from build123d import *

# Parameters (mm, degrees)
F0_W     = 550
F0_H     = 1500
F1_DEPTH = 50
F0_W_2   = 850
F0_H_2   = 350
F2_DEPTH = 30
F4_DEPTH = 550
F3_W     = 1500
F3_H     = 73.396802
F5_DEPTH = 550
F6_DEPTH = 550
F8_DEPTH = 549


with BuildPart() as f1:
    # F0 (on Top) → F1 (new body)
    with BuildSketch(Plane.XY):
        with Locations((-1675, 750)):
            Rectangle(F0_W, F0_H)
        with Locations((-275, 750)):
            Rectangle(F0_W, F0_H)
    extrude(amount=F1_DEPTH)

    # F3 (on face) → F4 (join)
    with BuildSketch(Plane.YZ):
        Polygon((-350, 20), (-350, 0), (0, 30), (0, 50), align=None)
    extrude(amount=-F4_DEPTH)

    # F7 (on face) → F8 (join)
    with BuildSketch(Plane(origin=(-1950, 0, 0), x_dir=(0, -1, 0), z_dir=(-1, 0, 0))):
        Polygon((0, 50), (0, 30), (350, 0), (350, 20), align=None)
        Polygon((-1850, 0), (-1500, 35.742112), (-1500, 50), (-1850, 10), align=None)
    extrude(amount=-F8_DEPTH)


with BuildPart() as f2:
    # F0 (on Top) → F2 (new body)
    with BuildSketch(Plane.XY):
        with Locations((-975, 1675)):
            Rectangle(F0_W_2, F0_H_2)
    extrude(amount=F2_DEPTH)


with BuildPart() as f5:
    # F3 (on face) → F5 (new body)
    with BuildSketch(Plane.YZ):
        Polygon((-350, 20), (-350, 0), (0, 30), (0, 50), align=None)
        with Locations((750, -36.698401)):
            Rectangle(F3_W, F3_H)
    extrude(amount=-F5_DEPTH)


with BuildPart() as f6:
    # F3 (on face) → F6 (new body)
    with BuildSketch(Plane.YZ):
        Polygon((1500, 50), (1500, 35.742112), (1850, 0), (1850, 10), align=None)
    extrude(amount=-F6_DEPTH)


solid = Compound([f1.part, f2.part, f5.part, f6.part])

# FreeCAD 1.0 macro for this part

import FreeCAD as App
import Part
import Sketcher

V = App.Vector
Q = App.Units.Quantity


def add_polygon(sketch, points):
    """Adds a closed chain of lines whose ends are joined by coincident constraints."""
    first, n = sketch.GeometryCount, len(points)
    for a, b in zip(points, points[1:] + points[:1]):
        sketch.addGeometry(Part.LineSegment(App.Vector(*a, 0), App.Vector(*b, 0)), False)
    for i in range(n):
        sketch.addConstraint(Sketcher.Constraint("Coincident", first + i, 2, first + (i + 1) % n, 1))

doc = App.newDocument("Part")
body = doc.addObject("PartDesign::Body", "Body")
body.AllowCompound = True

# Sketch on XY plane
sketch1 = body.newObject("Sketcher::SketchObject", "Sketch")
sketch1.AttachmentSupport = (doc.getObject("XY_Plane"), [""])
sketch1.MapMode = "FlatFace"
add_polygon(sketch1, [(-1950, 1500), (-1950, 0), (-1400, 0), (-1400, 1500)])  # lines 0-3
add_polygon(sketch1, [(-550, 1500), (-550, 0), (0, 0), (0, 1500)])  # lines 4-7
sketch1.addConstraint([
    Sketcher.Constraint("Vertical", 0),
    Sketcher.Constraint("Horizontal", 1),
    Sketcher.Constraint("Vertical", 2),
    Sketcher.Constraint("Horizontal", 3),
    Sketcher.Constraint("Vertical", 4),
    Sketcher.Constraint("Horizontal", 5),
    Sketcher.Constraint("Vertical", 6),
    Sketcher.Constraint("Horizontal", 7),
    Sketcher.Constraint("Coincident", 5, 2, -1, 1),
    Sketcher.Constraint("PointOnObject", 0, 2, -1),
    Sketcher.Constraint("Horizontal", 3, 2, 6, 2),
    Sketcher.Constraint("Equal", 3, 5),
    Sketcher.Constraint("DistanceX", 1, 1, 1, 2, Q("550 mm")),
    Sketcher.Constraint("DistanceY", 0, 2, 0, 1, Q("1500 mm")),
    Sketcher.Constraint("DistanceX", 0, 2, -1, 1, Q("1950 mm")),
])
pad1 = body.newObject("PartDesign::Pad", "Pad")
pad1.Profile = sketch1
pad1.Length = 50

# Sketch on YZ plane
sketch2 = body.newObject("Sketcher::SketchObject", "Sketch001")
sketch2.AttachmentSupport = (doc.getObject("YZ_Plane"), [""])
sketch2.MapMode = "FlatFace"
add_polygon(sketch2, [(-350, 20), (-350, 0), (0, 30), (0, 50)])  # lines 0-3
sketch2.addConstraint([
    Sketcher.Constraint("Vertical", 0),
    Sketcher.Constraint("Vertical", 2),
    Sketcher.Constraint("PointOnObject", 0, 2, -1),
    Sketcher.Constraint("PointOnObject", 1, 2, -2),
    Sketcher.Constraint("Parallel", 1, 3),
    Sketcher.Constraint("DistanceY", 0, 2, 0, 1, Q("20 mm")),
    Sketcher.Constraint("DistanceX", 0, 2, -1, 1, Q("350 mm")),
    Sketcher.Constraint("DistanceY", -1, 1, 1, 2, Q("30 mm")),
])
pad2 = body.newObject("PartDesign::Pad", "Pad001")
pad2.Profile = sketch2
pad2.Length = 550
pad2.Reversed = True

# Sketch on YZ plane
sketch3 = body.newObject("Sketcher::SketchObject", "Sketch002")
sketch3.AttachmentSupport = (doc.getObject("YZ_Plane"), [""])
sketch3.MapMode = "FlatFace"
sketch3.AttachmentOffset = App.Placement(V(0, 0, -1950), App.Rotation())
add_polygon(sketch3, [(0, 50), (0, 30), (-350, 0), (-350, 20)])  # lines 0-3
add_polygon(sketch3, [(1850, 0), (1500, 36), (1500, 50), (1850, 10)])  # lines 4-7
sketch3.addConstraint([
    Sketcher.Constraint("Vertical", 0),
    Sketcher.Constraint("Vertical", 2),
    Sketcher.Constraint("Vertical", 5),
    Sketcher.Constraint("Vertical", 7),
    Sketcher.Constraint("PointOnObject", 0, 2, -2),
    Sketcher.Constraint("PointOnObject", 1, 2, -1),
    Sketcher.Constraint("PointOnObject", 7, 2, -1),
    Sketcher.Constraint("Parallel", 1, 3),
    Sketcher.Constraint("Horizontal", 3, 2, 5, 2),
    Sketcher.Constraint("DistanceY", 0, 2, 0, 1, Q("20 mm")),
    Sketcher.Constraint("DistanceY", 7, 2, 7, 1, Q("10 mm")),
    Sketcher.Constraint("DistanceY", -1, 1, 0, 2, Q("30 mm")),
    Sketcher.Constraint("DistanceX", 1, 2, -1, 1, Q("350 mm")),
    Sketcher.Constraint("DistanceX", -1, 1, 4, 2, Q("1500 mm")),
    Sketcher.Constraint("DistanceX", -1, 1, 6, 2, Q("1850 mm")),
    Sketcher.Constraint("DistanceY", 5, 1, 5, 2, Q("14.257888 mm")),
])
pad3 = body.newObject("PartDesign::Pad", "Pad002")
pad3.Profile = sketch3
pad3.Length = 549
body2 = doc.addObject("PartDesign::Body", "Body001")

# Sketch on XY plane
sketch4 = body2.newObject("Sketcher::SketchObject", "Sketch003")
sketch4.AttachmentSupport = (doc.getObject("XY_Plane001"), [""])
sketch4.MapMode = "FlatFace"
add_polygon(sketch4, [(-1400, 1850), (-1400, 1500), (-550, 1500), (-550, 1850)])  # lines 0-3
sketch4.addConstraint([
    Sketcher.Constraint("Vertical", 0),
    Sketcher.Constraint("Horizontal", 1),
    Sketcher.Constraint("Vertical", 2),
    Sketcher.Constraint("Horizontal", 3),
    Sketcher.Constraint("DistanceX", 1, 1, 1, 2, Q("850 mm")),
    Sketcher.Constraint("DistanceY", 0, 2, 0, 1, Q("350 mm")),
    Sketcher.Constraint("DistanceX", 0, 2, -1, 1, Q("1400 mm")),
    Sketcher.Constraint("DistanceY", -1, 1, 0, 2, Q("1500 mm")),
])
pad4 = body2.newObject("PartDesign::Pad", "Pad003")
pad4.Profile = sketch4
pad4.Length = 30
body3 = doc.addObject("PartDesign::Body", "Body002")
body3.AllowCompound = True

# Sketch on YZ plane
sketch5 = body3.newObject("Sketcher::SketchObject", "Sketch004")
sketch5.AttachmentSupport = (doc.getObject("YZ_Plane002"), [""])
sketch5.MapMode = "FlatFace"
add_polygon(sketch5, [(-350, 20), (-350, 0), (0, 30), (0, 50)])  # lines 0-3
add_polygon(sketch5, [(0, 0), (0, -73), (1500, -73), (1500, 0)])  # lines 4-7
sketch5.addConstraint([
    Sketcher.Constraint("Vertical", 0),
    Sketcher.Constraint("Vertical", 2),
    Sketcher.Constraint("Vertical", 4),
    Sketcher.Constraint("Horizontal", 5),
    Sketcher.Constraint("Vertical", 6),
    Sketcher.Constraint("Horizontal", 7),
    Sketcher.Constraint("Coincident", 7, 2, -1, 1),
    Sketcher.Constraint("PointOnObject", 0, 2, -1),
    Sketcher.Constraint("PointOnObject", 1, 2, -2),
    Sketcher.Constraint("Parallel", 1, 3),
    Sketcher.Constraint("DistanceX", 5, 1, 5, 2, Q("1500 mm")),
    Sketcher.Constraint("DistanceY", 0, 2, 0, 1, Q("20 mm")),
    Sketcher.Constraint("DistanceX", 0, 2, -1, 1, Q("350 mm")),
    Sketcher.Constraint("DistanceY", -1, 1, 1, 2, Q("30 mm")),
    Sketcher.Constraint("DistanceY", 4, 2, 4, 1, Q("73.396802 mm")),
])
pad5 = body3.newObject("PartDesign::Pad", "Pad004")
pad5.Profile = sketch5
pad5.Length = 550
pad5.Reversed = True
body4 = doc.addObject("PartDesign::Body", "Body003")

# Sketch on YZ plane
sketch6 = body4.newObject("Sketcher::SketchObject", "Sketch005")
sketch6.AttachmentSupport = (doc.getObject("YZ_Plane003"), [""])
sketch6.MapMode = "FlatFace"
add_polygon(sketch6, [(1500, 50), (1500, 36), (1850, 0), (1850, 10)])  # lines 0-3
sketch6.addConstraint([
    Sketcher.Constraint("Vertical", 0),
    Sketcher.Constraint("Vertical", 2),
    Sketcher.Constraint("PointOnObject", 1, 2, -1),
    Sketcher.Constraint("DistanceY", 2, 1, 2, 2, Q("10 mm")),
    Sketcher.Constraint("DistanceX", -1, 1, 0, 2, Q("1500 mm")),
    Sketcher.Constraint("DistanceX", -1, 1, 1, 2, Q("1850 mm")),
    Sketcher.Constraint("DistanceY", -1, 1, 3, 2, Q("50 mm")),
    Sketcher.Constraint("DistanceY", 0, 2, 0, 1, Q("14.257888 mm")),
])
pad6 = body4.newObject("PartDesign::Pad", "Pad005")
pad6.Profile = sketch6
pad6.Length = 550
pad6.Reversed = True

doc.recompute()
